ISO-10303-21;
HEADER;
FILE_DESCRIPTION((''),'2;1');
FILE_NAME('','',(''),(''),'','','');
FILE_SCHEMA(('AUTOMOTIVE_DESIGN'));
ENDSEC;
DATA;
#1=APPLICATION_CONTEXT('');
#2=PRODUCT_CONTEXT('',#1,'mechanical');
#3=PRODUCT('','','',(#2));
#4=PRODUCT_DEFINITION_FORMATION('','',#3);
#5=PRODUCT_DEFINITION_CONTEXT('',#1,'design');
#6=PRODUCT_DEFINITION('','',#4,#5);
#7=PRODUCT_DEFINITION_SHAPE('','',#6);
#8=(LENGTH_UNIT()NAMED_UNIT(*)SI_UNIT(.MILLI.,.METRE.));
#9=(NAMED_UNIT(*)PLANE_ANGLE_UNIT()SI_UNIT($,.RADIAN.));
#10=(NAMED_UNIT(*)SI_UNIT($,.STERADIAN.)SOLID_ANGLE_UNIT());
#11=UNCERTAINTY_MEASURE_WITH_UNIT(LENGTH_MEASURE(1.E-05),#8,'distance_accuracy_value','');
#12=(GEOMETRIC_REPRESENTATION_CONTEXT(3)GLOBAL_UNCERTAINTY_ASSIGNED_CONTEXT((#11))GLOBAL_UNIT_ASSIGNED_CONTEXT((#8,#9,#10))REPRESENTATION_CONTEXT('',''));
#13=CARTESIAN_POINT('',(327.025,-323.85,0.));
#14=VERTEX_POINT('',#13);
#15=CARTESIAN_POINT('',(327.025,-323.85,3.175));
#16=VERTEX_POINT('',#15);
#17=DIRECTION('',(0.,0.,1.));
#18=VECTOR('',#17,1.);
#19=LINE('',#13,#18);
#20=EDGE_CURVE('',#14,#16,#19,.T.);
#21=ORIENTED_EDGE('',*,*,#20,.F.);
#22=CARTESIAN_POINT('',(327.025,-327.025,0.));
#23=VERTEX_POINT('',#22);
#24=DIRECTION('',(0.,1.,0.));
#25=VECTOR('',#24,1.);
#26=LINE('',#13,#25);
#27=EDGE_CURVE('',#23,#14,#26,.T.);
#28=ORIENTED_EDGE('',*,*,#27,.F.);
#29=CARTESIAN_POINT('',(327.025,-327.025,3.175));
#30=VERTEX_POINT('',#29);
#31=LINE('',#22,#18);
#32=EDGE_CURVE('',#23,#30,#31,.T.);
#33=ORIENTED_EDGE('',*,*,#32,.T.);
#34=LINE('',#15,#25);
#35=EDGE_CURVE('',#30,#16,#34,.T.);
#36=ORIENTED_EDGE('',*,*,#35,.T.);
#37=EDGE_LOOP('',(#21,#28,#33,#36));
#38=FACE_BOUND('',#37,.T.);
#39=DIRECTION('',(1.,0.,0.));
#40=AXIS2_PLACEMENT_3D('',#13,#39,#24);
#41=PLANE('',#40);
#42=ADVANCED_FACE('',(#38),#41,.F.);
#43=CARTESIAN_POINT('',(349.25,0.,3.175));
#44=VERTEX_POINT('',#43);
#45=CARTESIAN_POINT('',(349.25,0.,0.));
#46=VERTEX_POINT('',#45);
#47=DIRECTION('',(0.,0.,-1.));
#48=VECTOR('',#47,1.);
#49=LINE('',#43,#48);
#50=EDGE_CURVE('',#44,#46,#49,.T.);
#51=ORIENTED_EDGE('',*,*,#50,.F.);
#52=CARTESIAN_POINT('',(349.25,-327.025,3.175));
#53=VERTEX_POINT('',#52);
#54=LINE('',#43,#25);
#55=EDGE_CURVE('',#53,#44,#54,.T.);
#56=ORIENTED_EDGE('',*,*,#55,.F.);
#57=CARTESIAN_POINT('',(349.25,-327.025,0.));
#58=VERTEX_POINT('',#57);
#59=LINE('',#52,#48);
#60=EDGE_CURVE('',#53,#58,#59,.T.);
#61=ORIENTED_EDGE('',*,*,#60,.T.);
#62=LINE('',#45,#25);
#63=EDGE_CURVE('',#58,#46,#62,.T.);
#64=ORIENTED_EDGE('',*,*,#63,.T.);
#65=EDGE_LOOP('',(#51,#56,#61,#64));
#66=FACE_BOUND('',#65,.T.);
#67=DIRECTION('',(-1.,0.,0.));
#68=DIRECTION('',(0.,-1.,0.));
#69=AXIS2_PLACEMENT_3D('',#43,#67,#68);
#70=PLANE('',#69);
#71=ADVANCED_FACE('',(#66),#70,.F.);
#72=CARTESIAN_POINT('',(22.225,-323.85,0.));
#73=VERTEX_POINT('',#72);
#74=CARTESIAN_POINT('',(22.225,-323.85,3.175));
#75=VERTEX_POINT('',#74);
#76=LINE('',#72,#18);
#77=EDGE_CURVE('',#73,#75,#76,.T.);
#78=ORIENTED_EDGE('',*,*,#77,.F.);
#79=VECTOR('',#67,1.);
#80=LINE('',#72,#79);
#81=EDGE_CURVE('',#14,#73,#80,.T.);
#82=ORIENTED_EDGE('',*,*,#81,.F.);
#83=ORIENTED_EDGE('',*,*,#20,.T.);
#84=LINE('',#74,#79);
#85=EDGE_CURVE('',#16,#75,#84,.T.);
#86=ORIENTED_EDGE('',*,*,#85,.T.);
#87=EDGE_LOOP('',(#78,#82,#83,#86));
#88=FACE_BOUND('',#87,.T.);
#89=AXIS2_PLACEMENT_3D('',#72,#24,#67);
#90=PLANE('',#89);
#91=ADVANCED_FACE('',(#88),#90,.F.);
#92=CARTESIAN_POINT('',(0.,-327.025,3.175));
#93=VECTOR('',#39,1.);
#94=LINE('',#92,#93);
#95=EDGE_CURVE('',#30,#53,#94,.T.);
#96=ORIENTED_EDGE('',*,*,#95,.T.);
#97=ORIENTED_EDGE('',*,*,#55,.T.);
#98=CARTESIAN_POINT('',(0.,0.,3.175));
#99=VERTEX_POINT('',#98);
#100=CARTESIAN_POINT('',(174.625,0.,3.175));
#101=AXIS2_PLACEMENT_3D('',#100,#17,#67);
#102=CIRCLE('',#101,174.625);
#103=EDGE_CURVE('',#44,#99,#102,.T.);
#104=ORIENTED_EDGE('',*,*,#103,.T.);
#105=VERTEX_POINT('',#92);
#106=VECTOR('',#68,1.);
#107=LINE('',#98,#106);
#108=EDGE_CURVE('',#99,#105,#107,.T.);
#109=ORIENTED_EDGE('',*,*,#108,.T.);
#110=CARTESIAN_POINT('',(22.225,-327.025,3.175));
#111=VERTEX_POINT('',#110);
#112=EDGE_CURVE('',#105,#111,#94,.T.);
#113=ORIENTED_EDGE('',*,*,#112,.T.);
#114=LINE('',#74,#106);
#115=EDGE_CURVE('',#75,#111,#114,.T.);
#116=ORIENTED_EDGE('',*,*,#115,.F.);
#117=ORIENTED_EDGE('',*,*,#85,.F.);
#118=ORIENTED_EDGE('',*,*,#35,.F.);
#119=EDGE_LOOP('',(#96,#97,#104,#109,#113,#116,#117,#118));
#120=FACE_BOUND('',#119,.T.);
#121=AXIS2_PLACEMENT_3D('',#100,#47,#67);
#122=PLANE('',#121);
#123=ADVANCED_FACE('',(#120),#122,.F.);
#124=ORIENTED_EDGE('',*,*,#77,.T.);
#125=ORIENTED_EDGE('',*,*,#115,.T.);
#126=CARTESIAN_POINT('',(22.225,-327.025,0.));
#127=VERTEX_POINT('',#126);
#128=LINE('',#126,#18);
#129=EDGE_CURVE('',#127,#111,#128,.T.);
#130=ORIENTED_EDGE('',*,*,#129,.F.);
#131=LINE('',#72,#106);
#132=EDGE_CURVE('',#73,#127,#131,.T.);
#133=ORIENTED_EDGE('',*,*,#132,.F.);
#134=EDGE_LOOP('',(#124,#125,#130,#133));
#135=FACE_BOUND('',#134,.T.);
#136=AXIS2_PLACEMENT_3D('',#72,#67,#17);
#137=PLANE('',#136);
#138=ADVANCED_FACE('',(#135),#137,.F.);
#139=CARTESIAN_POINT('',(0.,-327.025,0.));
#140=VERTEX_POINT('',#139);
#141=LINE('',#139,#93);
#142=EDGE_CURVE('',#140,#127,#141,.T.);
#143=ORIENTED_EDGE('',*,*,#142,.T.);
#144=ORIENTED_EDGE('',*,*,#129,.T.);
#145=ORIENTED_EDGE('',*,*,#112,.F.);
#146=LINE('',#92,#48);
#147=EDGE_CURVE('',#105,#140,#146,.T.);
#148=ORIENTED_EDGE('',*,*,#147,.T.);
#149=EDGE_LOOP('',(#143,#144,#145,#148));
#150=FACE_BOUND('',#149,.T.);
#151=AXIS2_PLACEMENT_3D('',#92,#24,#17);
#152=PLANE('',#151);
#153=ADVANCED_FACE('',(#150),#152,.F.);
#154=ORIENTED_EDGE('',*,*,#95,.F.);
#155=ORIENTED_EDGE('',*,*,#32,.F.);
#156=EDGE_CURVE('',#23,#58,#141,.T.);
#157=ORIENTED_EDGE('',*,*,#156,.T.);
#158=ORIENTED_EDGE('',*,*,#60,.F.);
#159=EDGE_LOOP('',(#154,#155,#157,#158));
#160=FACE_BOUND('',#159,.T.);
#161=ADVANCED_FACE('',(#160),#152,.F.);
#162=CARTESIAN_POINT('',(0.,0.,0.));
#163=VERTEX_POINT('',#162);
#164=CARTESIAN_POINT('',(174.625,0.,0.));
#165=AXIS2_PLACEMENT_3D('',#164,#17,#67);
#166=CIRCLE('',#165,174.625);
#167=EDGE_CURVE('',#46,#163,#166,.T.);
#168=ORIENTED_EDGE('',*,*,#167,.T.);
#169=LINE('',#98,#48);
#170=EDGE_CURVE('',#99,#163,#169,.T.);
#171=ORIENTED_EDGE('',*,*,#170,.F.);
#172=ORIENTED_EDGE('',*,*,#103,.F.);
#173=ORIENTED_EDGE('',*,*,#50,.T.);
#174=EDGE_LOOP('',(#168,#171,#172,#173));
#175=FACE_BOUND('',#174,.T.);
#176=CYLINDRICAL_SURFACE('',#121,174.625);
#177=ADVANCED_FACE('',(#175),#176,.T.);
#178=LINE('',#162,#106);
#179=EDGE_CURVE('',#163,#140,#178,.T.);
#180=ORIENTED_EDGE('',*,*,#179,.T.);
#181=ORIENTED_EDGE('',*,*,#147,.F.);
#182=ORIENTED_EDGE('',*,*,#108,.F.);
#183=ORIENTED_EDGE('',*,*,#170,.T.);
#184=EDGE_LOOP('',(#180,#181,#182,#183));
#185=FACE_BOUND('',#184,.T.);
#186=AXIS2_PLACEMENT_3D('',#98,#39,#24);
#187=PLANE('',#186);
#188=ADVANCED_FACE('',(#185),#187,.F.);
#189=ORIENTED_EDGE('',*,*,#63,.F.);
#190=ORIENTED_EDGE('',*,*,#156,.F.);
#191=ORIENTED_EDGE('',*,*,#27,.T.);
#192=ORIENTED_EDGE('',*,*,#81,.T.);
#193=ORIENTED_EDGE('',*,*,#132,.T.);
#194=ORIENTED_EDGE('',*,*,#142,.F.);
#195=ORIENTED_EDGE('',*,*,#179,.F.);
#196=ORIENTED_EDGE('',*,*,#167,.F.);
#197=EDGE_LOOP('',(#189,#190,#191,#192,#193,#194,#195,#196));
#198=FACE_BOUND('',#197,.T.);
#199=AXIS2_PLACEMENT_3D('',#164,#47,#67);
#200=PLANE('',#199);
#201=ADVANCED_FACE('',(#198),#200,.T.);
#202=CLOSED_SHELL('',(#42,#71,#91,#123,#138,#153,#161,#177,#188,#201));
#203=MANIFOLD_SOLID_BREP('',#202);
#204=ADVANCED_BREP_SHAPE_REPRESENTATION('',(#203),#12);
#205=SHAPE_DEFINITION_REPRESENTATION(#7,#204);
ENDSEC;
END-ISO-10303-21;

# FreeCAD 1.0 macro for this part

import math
import FreeCAD as App
import Part
import Sketcher
Q = App.Units.Quantity

doc = App.newDocument("Part")
body = doc.addObject("PartDesign::Body", "Body")

sketch1 = body.newObject("Sketcher::SketchObject", "Sketch")
sketch1.AttachmentSupport = (doc.getObject("XY_Plane"), [""])
sketch1.MapMode = "FlatFace"
sketch1.addGeometry([
    Part.LineSegment(App.Vector(0, 0, 0), App.Vector(0, -327, 0)),
    Part.LineSegment(App.Vector(0, -327, 0), App.Vector(349, -327, 0)),
    Part.LineSegment(App.Vector(349, -327, 0), App.Vector(349, 0, 0)),
    Part.ArcOfCircle(Part.Circle(App.Vector(175, 0, 0), App.Vector(0, 0, 1), 175), math.radians(0), math.radians(180)),
], False)
sketch1.addConstraint([
    Sketcher.Constraint("Coincident", 0, 2, 1, 1),
    Sketcher.Constraint("Coincident", 1, 2, 2, 1),
    Sketcher.Constraint("Tangent", 2, 2, 3, 1),
    Sketcher.Constraint("Tangent", 3, 2, 0, 1),
    Sketcher.Constraint("Vertical", 0),
    Sketcher.Constraint("Horizontal", 1),
    Sketcher.Constraint("Vertical", 2),
    Sketcher.Constraint("Coincident", 3, 2, -1, 1),
    Sketcher.Constraint("Radius", 3, Q("6.875 in")),
    Sketcher.Constraint("DistanceY", 0, 2, 0, 1, Q("12.875 in")),
])
pad1 = body.newObject("PartDesign::Pad", "Pad")
pad1.Profile = sketch1
pad1.Length = Q("0.125 in")

sketch2 = body.newObject("Sketcher::SketchObject", "Sketch001")
sketch2.AttachmentSupport = (doc.getObject("XY_Plane"), [""])
sketch2.MapMode = "FlatFace"
sketch2.AttachmentOffset = App.Placement(App.Vector(0, 0, 0.125 * 25.4), App.Rotation())
sketch2.addGeometry([
    Part.LineSegment(App.Vector(22.2, -323.9, 0), App.Vector(22.2, -327, 0)),
    Part.LineSegment(App.Vector(22.2, -327, 0), App.Vector(327, -327, 0)),
    Part.LineSegment(App.Vector(327, -327, 0), App.Vector(327, -323.9, 0)),
    Part.LineSegment(App.Vector(327, -323.9, 0), App.Vector(22.2, -323.9, 0)),
], False)
sketch2.addConstraint([
    Sketcher.Constraint("Coincident", 0, 2, 1, 1),
    Sketcher.Constraint("Coincident", 1, 2, 2, 1),
    Sketcher.Constraint("Coincident", 2, 2, 3, 1),
    Sketcher.Constraint("Coincident", 3, 2, 0, 1),
    Sketcher.Constraint("Vertical", 0),
    Sketcher.Constraint("Horizontal", 1),
    Sketcher.Constraint("Vertical", 2),
    Sketcher.Constraint("Horizontal", 3),
    Sketcher.Constraint("DistanceX", 1, 1, 1, 2, Q("12 in")),
    Sketcher.Constraint("DistanceY", 0, 2, 0, 1, Q("0.125 in")),
    Sketcher.Constraint("DistanceY", 2, 2, -1, 1, Q("12.75 in")),
    Sketcher.Constraint("DistanceX", -1, 1, 0, 2, Q("0.875 in")),
])
pocket1 = body.newObject("PartDesign::Pocket", "Pocket")
pocket1.Profile = sketch2
pocket1.Length = Q("0.125 in")

doc.recompute()
